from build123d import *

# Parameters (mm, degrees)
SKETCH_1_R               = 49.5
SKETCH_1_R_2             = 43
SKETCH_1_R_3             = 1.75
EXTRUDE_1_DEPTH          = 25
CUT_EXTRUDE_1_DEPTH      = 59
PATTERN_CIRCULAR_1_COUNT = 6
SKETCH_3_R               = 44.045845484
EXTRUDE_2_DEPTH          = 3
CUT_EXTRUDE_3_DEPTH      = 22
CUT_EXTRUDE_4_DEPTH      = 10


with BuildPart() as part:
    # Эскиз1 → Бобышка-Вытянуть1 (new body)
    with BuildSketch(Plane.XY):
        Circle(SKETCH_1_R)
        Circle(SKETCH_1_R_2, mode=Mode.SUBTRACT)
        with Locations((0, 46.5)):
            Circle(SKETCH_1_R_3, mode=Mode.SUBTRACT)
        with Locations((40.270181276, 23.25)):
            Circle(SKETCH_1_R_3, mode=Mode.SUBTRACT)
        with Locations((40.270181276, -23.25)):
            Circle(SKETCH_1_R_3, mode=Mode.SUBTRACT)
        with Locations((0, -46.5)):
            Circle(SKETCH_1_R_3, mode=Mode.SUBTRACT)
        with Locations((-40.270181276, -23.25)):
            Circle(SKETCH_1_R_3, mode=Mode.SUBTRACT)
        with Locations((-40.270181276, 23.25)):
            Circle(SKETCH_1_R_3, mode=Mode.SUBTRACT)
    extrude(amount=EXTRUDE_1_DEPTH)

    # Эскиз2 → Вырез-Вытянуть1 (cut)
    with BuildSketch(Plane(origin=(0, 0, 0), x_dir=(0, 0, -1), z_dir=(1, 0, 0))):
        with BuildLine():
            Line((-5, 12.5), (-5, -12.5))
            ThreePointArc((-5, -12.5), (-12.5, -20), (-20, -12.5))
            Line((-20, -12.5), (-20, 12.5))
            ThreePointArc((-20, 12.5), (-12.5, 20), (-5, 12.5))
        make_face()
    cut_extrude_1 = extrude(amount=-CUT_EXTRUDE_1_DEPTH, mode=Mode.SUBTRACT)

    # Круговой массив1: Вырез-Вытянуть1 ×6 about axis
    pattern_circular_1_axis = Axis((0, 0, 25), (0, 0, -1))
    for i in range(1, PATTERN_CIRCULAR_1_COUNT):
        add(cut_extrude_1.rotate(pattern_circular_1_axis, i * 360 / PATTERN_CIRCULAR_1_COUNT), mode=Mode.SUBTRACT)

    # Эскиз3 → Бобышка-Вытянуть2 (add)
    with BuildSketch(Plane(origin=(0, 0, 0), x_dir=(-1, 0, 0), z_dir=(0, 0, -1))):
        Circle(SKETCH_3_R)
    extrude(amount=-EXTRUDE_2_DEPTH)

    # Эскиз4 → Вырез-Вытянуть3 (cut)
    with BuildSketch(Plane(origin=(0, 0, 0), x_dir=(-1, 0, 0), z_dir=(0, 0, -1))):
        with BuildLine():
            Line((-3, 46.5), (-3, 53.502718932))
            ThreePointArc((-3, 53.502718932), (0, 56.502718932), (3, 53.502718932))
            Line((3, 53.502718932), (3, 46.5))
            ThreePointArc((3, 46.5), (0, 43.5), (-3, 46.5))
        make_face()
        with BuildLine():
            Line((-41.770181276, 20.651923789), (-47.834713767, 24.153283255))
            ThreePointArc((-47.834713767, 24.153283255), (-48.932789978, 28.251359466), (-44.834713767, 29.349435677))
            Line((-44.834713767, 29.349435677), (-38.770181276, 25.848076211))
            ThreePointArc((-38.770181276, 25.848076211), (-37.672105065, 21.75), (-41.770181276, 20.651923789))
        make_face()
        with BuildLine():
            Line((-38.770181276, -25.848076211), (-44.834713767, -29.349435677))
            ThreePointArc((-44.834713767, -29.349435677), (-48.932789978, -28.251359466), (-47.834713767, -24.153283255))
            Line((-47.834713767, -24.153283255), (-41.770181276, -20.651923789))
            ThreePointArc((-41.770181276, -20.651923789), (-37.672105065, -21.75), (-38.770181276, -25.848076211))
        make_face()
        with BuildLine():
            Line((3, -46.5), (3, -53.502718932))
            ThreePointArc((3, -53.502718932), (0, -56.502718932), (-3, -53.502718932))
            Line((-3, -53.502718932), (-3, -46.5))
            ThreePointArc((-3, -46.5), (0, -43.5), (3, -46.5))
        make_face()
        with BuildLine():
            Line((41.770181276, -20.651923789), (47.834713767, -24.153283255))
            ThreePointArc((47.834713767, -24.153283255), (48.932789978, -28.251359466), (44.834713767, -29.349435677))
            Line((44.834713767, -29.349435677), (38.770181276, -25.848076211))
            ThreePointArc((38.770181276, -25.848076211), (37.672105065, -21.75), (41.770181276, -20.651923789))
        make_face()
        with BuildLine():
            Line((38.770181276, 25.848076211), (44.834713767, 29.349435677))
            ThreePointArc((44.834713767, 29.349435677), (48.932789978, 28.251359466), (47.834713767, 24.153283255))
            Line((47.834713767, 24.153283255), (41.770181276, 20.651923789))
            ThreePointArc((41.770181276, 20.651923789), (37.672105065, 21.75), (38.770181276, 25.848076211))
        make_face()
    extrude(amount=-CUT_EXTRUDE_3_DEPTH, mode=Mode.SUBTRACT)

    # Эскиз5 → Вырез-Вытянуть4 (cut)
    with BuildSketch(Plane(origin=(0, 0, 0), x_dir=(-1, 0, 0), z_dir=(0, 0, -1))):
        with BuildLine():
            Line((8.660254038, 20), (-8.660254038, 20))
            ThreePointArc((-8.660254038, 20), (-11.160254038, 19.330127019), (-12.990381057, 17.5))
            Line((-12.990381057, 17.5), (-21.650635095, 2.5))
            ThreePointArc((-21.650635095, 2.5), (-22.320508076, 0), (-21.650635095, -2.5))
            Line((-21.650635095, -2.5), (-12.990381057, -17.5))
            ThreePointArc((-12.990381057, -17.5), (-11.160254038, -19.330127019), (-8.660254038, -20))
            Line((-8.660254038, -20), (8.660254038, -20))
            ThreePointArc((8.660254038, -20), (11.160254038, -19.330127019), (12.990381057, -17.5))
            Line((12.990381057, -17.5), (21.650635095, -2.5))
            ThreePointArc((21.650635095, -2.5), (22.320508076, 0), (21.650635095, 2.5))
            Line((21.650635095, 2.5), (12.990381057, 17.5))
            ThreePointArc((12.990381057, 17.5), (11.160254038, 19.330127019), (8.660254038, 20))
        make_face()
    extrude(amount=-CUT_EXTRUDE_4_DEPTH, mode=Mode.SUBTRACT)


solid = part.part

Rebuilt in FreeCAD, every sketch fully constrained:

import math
import FreeCAD as App
import Part
import Sketcher
from FreeCAD import Vector
Q = App.Units.Quantity

doc = App.newDocument("Part")
body = doc.addObject("PartDesign::Body", "Body")

sketch1 = body.newObject("Sketcher::SketchObject", "Sketch")
sketch1.AttachmentSupport = (doc.getObject("XY_Plane"), [""])
sketch1.MapMode = "FlatFace"
sketch1.addGeometry(Part.Circle(Vector(0, 0, 0), Vector(0, 0, 1), 49.5), False)
sketch1.addGeometry(Part.Circle(Vector(-40.3, -23.2, 0), Vector(0, 0, 1), 1.8), False)
sketch1.addGeometry(Part.Circle(Vector(0, -46.5, 0), Vector(0, 0, 1), 1.8), False)
sketch1.addGeometry(Part.Circle(Vector(40.3, -23.2, 0), Vector(0, 0, 1), 1.8), False)
sketch1.addGeometry(Part.Circle(Vector(-40.3, 23.2, 0), Vector(0, 0, 1), 1.8), False)
sketch1.addGeometry(Part.Circle(Vector(0, 0, 0), Vector(0, 0, 1), 43), False)
sketch1.addGeometry(Part.Circle(Vector(40.3, 23.2, 0), Vector(0, 0, 1), 1.8), False)
sketch1.addGeometry(Part.Circle(Vector(0, 46.5, 0), Vector(0, 0, 1), 1.8), False)
sketch1.addConstraint(Sketcher.Constraint("Coincident", 0, 3, -1, 1))
sketch1.addConstraint(Sketcher.Constraint("Coincident", 5, 3, -1, 1))
sketch1.addConstraint(Sketcher.Constraint("Equal", 1, 2))
sketch1.addConstraint(Sketcher.Constraint("Equal", 2, 3))
sketch1.addConstraint(Sketcher.Constraint("Equal", 3, 4))
sketch1.addConstraint(Sketcher.Constraint("Equal", 4, 6))
sketch1.addConstraint(Sketcher.Constraint("Equal", 6, 7))
sketch1.addConstraint(Sketcher.Constraint("Symmetric", 3, 3, 4, 3, -1, 1))
sketch1.addConstraint(Sketcher.Constraint("Symmetric", 1, 3, 6, 3, -1, 1))
sketch1.addConstraint(Sketcher.Constraint("Symmetric", 2, 3, 7, 3, -1, 1))
sketch1.addConstraint(Sketcher.Constraint("Symmetric", 1, 3, 3, 3, -2))
sketch1.addConstraint(Sketcher.Constraint("PointOnObject", 2, 3, -2))
sketch1.addConstraint(Sketcher.Constraint("Diameter", 0, 99.0))
sketch1.addConstraint(Sketcher.Constraint("Diameter", 5, 86.0))
sketch1.addConstraint(Sketcher.Constraint("Diameter", 1, 3.5))
sketch1.addConstraint(Sketcher.Constraint("DistanceY", 2, 3, -1, 1, 46.5))
sketch1.addConstraint(Sketcher.Constraint("DistanceY", 1, 3, 4, 3, 46.5))
sketch1.addConstraint(Sketcher.Constraint("DistanceX", 1, 3, -1, 1, 40.270181))
pad1 = body.newObject("PartDesign::Pad", "Pad")
pad1.Profile = sketch1
pad1.Length = 25

sketch2 = body.newObject("Sketcher::SketchObject", "Sketch001")
sketch2.AttachmentSupport = (doc.getObject("YZ_Plane"), [""])
sketch2.MapMode = "FlatFace"
sketch2.addGeometry(Part.LineSegment(Vector(-12, 5, 0), Vector(12, 5, 0)), False)
sketch2.addGeometry(Part.ArcOfCircle(Part.Circle(Vector(12, 12, 0), Vector(0, 0, 1), 8), math.radians(-90), math.radians(90)), False)
sketch2.addGeometry(Part.LineSegment(Vector(12, 20, 0), Vector(-12, 20, 0)), False)
sketch2.addGeometry(Part.ArcOfCircle(Part.Circle(Vector(-12, 12, 0), Vector(0, 0, 1), 8), math.radians(90), math.radians(270)), False)
sketch2.addConstraint(Sketcher.Constraint("Tangent", 0, 2, 1, 1))
sketch2.addConstraint(Sketcher.Constraint("Tangent", 1, 2, 2, 1))
sketch2.addConstraint(Sketcher.Constraint("Tangent", 2, 2, 3, 1))
sketch2.addConstraint(Sketcher.Constraint("Tangent", 3, 2, 0, 1))
sketch2.addConstraint(Sketcher.Constraint("Horizontal", 0))
sketch2.addConstraint(Sketcher.Constraint("Horizontal", 2))
sketch2.addConstraint(Sketcher.Constraint("Radius", 1, 7.5))
sketch2.addConstraint(Sketcher.Constraint("DistanceX", 0, 1, 0, 2, 25.0))
sketch2.addConstraint(Sketcher.Constraint("DistanceY", -1, 1, 0, 2, 5.0))
sketch2.addConstraint(Sketcher.Constraint("DistanceX", -1, 1, 1, 3, 12.5))
pocket1 = body.newObject("PartDesign::Pocket", "Pocket")
pocket1.Profile = sketch2
pocket1.Length = 59
doc.recompute()

polarpattern = body.newObject("PartDesign::PolarPattern", "PolarPattern")
polarpattern.Originals = [pocket1]
polarpattern.Axis = (doc.getObject("Z_Axis"), [""])
polarpattern.Angle = 360
polarpattern.Occurrences = 6
body.Tip = polarpattern

sketch3 = body.newObject("Sketcher::SketchObject", "Sketch002")
sketch3.AttachmentSupport = (doc.getObject("XY_Plane"), [""])
sketch3.MapMode = "FlatFace"
sketch3.addGeometry(Part.Circle(Vector(0, 0, 0), Vector(0, 0, 1), 44), False)
sketch3.addConstraint(Sketcher.Constraint("Coincident", 0, 3, -1, 1))
sketch3.addConstraint(Sketcher.Constraint("Diameter", 0, 88.091691))
pad2 = body.newObject("PartDesign::Pad", "Pad001")
pad2.Profile = sketch3
pad2.Length = 3

sketch4 = body.newObject("Sketcher::SketchObject", "Sketch003")
sketch4.AttachmentSupport = (doc.getObject("XY_Plane"), [""])
sketch4.MapMode = "FlatFace"
sketch4.addGeometry(Part.LineSegment(Vector(3, 53.5, 0), Vector(3, 46.5, 0)), False)
sketch4.addGeometry(Part.ArcOfCircle(Part.Circle(Vector(0, 46.5, 0), Vector(0, 0, 1), 3), math.radians(180), math.radians(360)), False)
sketch4.addGeometry(Part.LineSegment(Vector(-3, 46.5, 0), Vector(-3, 53.5, 0)), False)
sketch4.addGeometry(Part.ArcOfCircle(Part.Circle(Vector(0, 53.5, 0), Vector(0, 0, 1), 3), math.radians(0), math.radians(180)), False)
sketch4.addGeometry(Part.LineSegment(Vector(47.8, 24.2, 0), Vector(41.8, 20.7, 0)), False)
sketch4.addGeometry(Part.ArcOfCircle(Part.Circle(Vector(40.3, 23.2, 0), Vector(0, 0, 1), 3), math.radians(120), math.radians(300)), False)
sketch4.addGeometry(Part.LineSegment(Vector(38.8, 25.8, 0), Vector(44.8, 29.3, 0)), False)
sketch4.addGeometry(Part.ArcOfCircle(Part.Circle(Vector(46.3, 26.8, 0), Vector(0, 0, 1), 3), math.radians(-60), math.radians(120)), False)
sketch4.addGeometry(Part.LineSegment(Vector(44.8, -29.3, 0), Vector(38.8, -25.8, 0)), False)
sketch4.addGeometry(Part.ArcOfCircle(Part.Circle(Vector(40.3, -23.2, 0), Vector(0, 0, 1), 3), math.radians(60), math.radians(240)), False)
sketch4.addGeometry(Part.LineSegment(Vector(41.8, -20.7, 0), Vector(47.8, -24.2, 0)), False)
sketch4.addGeometry(Part.ArcOfCircle(Part.Circle(Vector(46.3, -26.8, 0), Vector(0, 0, 1), 3), math.radians(-120), math.radians(60)), False)
sketch4.addGeometry(Part.LineSegment(Vector(-3, -53.5, 0), Vector(-3, -46.5, 0)), False)
sketch4.addGeometry(Part.ArcOfCircle(Part.Circle(Vector(0, -46.5, 0), Vector(0, 0, 1), 3), math.radians(0), math.radians(180)), False)
sketch4.addGeometry(Part.LineSegment(Vector(3, -46.5, 0), Vector(3, -53.5, 0)), False)
sketch4.addGeometry(Part.ArcOfCircle(Part.Circle(Vector(0, -53.5, 0), Vector(0, 0, 1), 3), math.radians(180), math.radians(360)), False)
sketch4.addGeometry(Part.LineSegment(Vector(-47.8, -24.2, 0), Vector(-41.8, -20.7, 0)), False)
sketch4.addGeometry(Part.ArcOfCircle(Part.Circle(Vector(-40.3, -23.2, 0), Vector(0, 0, 1), 3), math.radians(-60), math.radians(120)), False)
sketch4.addGeometry(Part.LineSegment(Vector(-38.8, -25.8, 0), Vector(-44.8, -29.3, 0)), False)
sketch4.addGeometry(Part.ArcOfCircle(Part.Circle(Vector(-46.3, -26.8, 0), Vector(0, 0, 1), 3), math.radians(120), math.radians(300)), False)
sketch4.addGeometry(Part.LineSegment(Vector(-44.8, 29.3, 0), Vector(-38.8, 25.8, 0)), False)
sketch4.addGeometry(Part.ArcOfCircle(Part.Circle(Vector(-40.3, 23.2, 0), Vector(0, 0, 1), 3), math.radians(-120), math.radians(60)), False)
sketch4.addGeometry(Part.LineSegment(Vector(-41.8, 20.7, 0), Vector(-47.8, 24.2, 0)), False)
sketch4.addGeometry(Part.ArcOfCircle(Part.Circle(Vector(-46.3, 26.8, 0), Vector(0, 0, 1), 3), math.radians(60), math.radians(240)), False)
sketch4.addConstraint(Sketcher.Constraint("Tangent", 0, 2, 1, 2))
sketch4.addConstraint(Sketcher.Constraint("Tangent", 1, 1, 2, 1))
sketch4.addConstraint(Sketcher.Constraint("Tangent", 2, 2, 3, 2))
sketch4.addConstraint(Sketcher.Constraint("Tangent", 3, 1, 0, 1))
sketch4.addConstraint(Sketcher.Constraint("Tangent", 4, 2, 5, 2))
sketch4.addConstraint(Sketcher.Constraint("Tangent", 5, 1, 6, 1))
sketch4.addConstraint(Sketcher.Constraint("Tangent", 6, 2, 7, 2))
sketch4.addConstraint(Sketcher.Constraint("Tangent", 7, 1, 4, 1))
sketch4.addConstraint(Sketcher.Constraint("Tangent", 8, 2, 9, 2))
sketch4.addConstraint(Sketcher.Constraint("Tangent", 9, 1, 10, 1))
sketch4.addConstraint(Sketcher.Constraint("Tangent", 10, 2, 11, 2))
sketch4.addConstraint(Sketcher.Constraint("Tangent", 11, 1, 8, 1))
sketch4.addConstraint(Sketcher.Constraint("Tangent", 12, 2, 13, 2))
sketch4.addConstraint(Sketcher.Constraint("Tangent", 13, 1, 14, 1))
sketch4.addConstraint(Sketcher.Constraint("Tangent", 14, 2, 15, 2))
sketch4.addConstraint(Sketcher.Constraint("Tangent", 15, 1, 12, 1))
sketch4.addConstraint(Sketcher.Constraint("Tangent", 16, 2, 17, 2))
sketch4.addConstraint(Sketcher.Constraint("Tangent", 17, 1, 18, 1))
sketch4.addConstraint(Sketcher.Constraint("Tangent", 18, 2, 19, 2))
sketch4.addConstraint(Sketcher.Constraint("Tangent", 19, 1, 16, 1))
sketch4.addConstraint(Sketcher.Constraint("Tangent", 20, 2, 21, 2))
sketch4.addConstraint(Sketcher.Constraint("Tangent", 21, 1, 22, 1))
sketch4.addConstraint(Sketcher.Constraint("Tangent", 22, 2, 23, 2))
sketch4.addConstraint(Sketcher.Constraint("Tangent", 23, 1, 20, 1))
sketch4.addConstraint(Sketcher.Constraint("Vertical", 0))
sketch4.addConstraint(Sketcher.Constraint("Vertical", 2))
sketch4.addConstraint(Sketcher.Constraint("Vertical", 12))
sketch4.addConstraint(Sketcher.Constraint("Vertical", 14))
sketch4.addConstraint(Sketcher.Constraint("Equal", 3, 5))
sketch4.addConstraint(Sketcher.Constraint("Equal", 5, 7))
sketch4.addConstraint(Sketcher.Constraint("Equal", 7, 9))
sketch4.addConstraint(Sketcher.Constraint("Equal", 9, 11))
sketch4.addConstraint(Sketcher.Constraint("Equal", 11, 13))
sketch4.addConstraint(Sketcher.Constraint("Equal", 15, 17))
sketch4.addConstraint(Sketcher.Constraint("Equal", 17, 19))
sketch4.addConstraint(Sketcher.Constraint("Equal", 19, 21))
sketch4.addConstraint(Sketcher.Constraint("Equal", 21, 23))
sketch4.addConstraint(Sketcher.Constraint("Symmetric", 1, 3, 13, 3, -1, 1))
sketch4.addConstraint(Sketcher.Constraint("Symmetric", 5, 3, 17, 3, -1, 1))
sketch4.addConstraint(Sketcher.Constraint("Symmetric", 7, 3, 19, 3, -1, 1))
sketch4.addConstraint(Sketcher.Constraint("Symmetric", 9, 3, 21, 3, -1, 1))
sketch4.addConstraint(Sketcher.Constraint("Symmetric", 11, 3, 23, 3, -1, 1))
sketch4.addConstraint(Sketcher.Constraint("Symmetric", 9, 3, 17, 3, -2))
sketch4.addConstraint(Sketcher.Constraint("Symmetric", 11, 3, 19, 3, -2))
sketch4.addConstraint(Sketcher.Constraint("Symmetric", 3, 3, 15, 3, -1))
sketch4.addConstraint(Sketcher.Constraint("Radius", 1, 3.0))
sketch4.addConstraint(Sketcher.Constraint("Angle", 4, Q("-150 deg")))
sketch4.addConstraint(Sketcher.Constraint("DistanceY", 13, 3, 1, 3, 93.0))
sketch4.addConstraint(Sketcher.Constraint("DistanceY", 9, 3, 5, 3, 46.5))
sketch4.addConstraint(Sketcher.Constraint("DistanceY", 0, 2, 0, 1, 7.002719))
sketch4.addConstraint(Sketcher.Constraint("Distance", 4, 7.002719))
sketch4.addConstraint(Sketcher.Constraint("DistanceX", -1, 1, 5, 3, 40.270181))
pocket2 = body.newObject("PartDesign::Pocket", "Pocket001")
pocket2.Profile = sketch4
pocket2.Length = 22
pocket2.Reversed = True

sketch5 = body.newObject("Sketcher::SketchObject", "Sketch004")
sketch5.AttachmentSupport = (doc.getObject("XY_Plane"), [""])
sketch5.MapMode = "FlatFace"
sketch5.addGeometry(Part.LineSegment(Vector(-9, 20, 0), Vector(9, 20, 0)), False)
sketch5.addGeometry(Part.ArcOfCircle(Part.Circle(Vector(9, 15, 0), Vector(0, 0, 1), 5), math.radians(30), math.radians(90)), False)
sketch5.addGeometry(Part.LineSegment(Vector(13, 18, 0), Vector(22, 2, 0)), False)
sketch5.addGeometry(Part.ArcOfCircle(Part.Circle(Vector(17, 0, 0), Vector(0, 0, 1), 5), math.radians(-30), math.radians(30)), False)
sketch5.addGeometry(Part.LineSegment(Vector(22, -2, 0), Vector(13, -18, 0)), False)
sketch5.addGeometry(Part.ArcOfCircle(Part.Circle(Vector(9, -15, 0), Vector(0, 0, 1), 5), math.radians(-90), math.radians(-30)), False)
sketch5.addGeometry(Part.LineSegment(Vector(9, -20, 0), Vector(-9, -20, 0)), False)
sketch5.addGeometry(Part.ArcOfCircle(Part.Circle(Vector(-9, -15, 0), Vector(0, 0, 1), 5), math.radians(-150), math.radians(-90)), False)
sketch5.addGeometry(Part.LineSegment(Vector(-13, -18, 0), Vector(-22, -2, 0)), False)
sketch5.addGeometry(Part.ArcOfCircle(Part.Circle(Vector(-17, 0, 0), Vector(0, 0, 1), 5), math.radians(150), math.radians(210)), False)
sketch5.addGeometry(Part.LineSegment(Vector(-22, 2, 0), Vector(-13, 18, 0)), False)
sketch5.addGeometry(Part.ArcOfCircle(Part.Circle(Vector(-9, 15, 0), Vector(0, 0, 1), 5), math.radians(90), math.radians(150)), False)
sketch5.addConstraint(Sketcher.Constraint("Tangent", 0, 2, 1, 2))
sketch5.addConstraint(Sketcher.Constraint("Tangent", 1, 1, 2, 1))
sketch5.addConstraint(Sketcher.Constraint("Tangent", 2, 2, 3, 2))
sketch5.addConstraint(Sketcher.Constraint("Tangent", 3, 1, 4, 1))
sketch5.addConstraint(Sketcher.Constraint("Tangent", 4, 2, 5, 2))
sketch5.addConstraint(Sketcher.Constraint("Tangent", 5, 1, 6, 1))
sketch5.addConstraint(Sketcher.Constraint("Tangent", 6, 2, 7, 2))
sketch5.addConstraint(Sketcher.Constraint("Tangent", 7, 1, 8, 1))
sketch5.addConstraint(Sketcher.Constraint("Tangent", 8, 2, 9, 2))
sketch5.addConstraint(Sketcher.Constraint("Tangent", 9, 1, 10, 1))
sketch5.addConstraint(Sketcher.Constraint("Tangent", 10, 2, 11, 2))
sketch5.addConstraint(Sketcher.Constraint("Tangent", 11, 1, 0, 1))
sketch5.addConstraint(Sketcher.Constraint("Horizontal", 0))
sketch5.addConstraint(Sketcher.Constraint("Horizontal", 6))
sketch5.addConstraint(Sketcher.Constraint("Equal", 1, 3))
sketch5.addConstraint(Sketcher.Constraint("Equal", 3, 5))
sketch5.addConstraint(Sketcher.Constraint("Equal", 5, 7))
sketch5.addConstraint(Sketcher.Constraint("Equal", 7, 9))
sketch5.addConstraint(Sketcher.Constraint("Equal", 9, 11))
sketch5.addConstraint(Sketcher.Constraint("Symmetric", 1, 3, 7, 3, -1, 1))
sketch5.addConstraint(Sketcher.Constraint("Symmetric", 3, 3, 9, 3, -1, 1))
sketch5.addConstraint(Sketcher.Constraint("Symmetric", 4, 2, 7, 1, -2))
sketch5.addConstraint(Sketcher.Constraint("Parallel", 4, 10))
sketch5.addConstraint(Sketcher.Constraint("Radius", 1, 5.0))
sketch5.addConstraint(Sketcher.Constraint("Angle", 2, Q("-60 deg")))
sketch5.addConstraint(Sketcher.Constraint("DistanceY", -1, 1, 1, 3, 15.0))
sketch5.addConstraint(Sketcher.Constraint("DistanceX", 0, 1, 0, 2, 17.320508))
pocket3 = body.newObject("PartDesign::Pocket", "Pocket002")
pocket3.Profile = sketch5
pocket3.Length = 10
pocket3.Reversed = True

doc.recompute()
